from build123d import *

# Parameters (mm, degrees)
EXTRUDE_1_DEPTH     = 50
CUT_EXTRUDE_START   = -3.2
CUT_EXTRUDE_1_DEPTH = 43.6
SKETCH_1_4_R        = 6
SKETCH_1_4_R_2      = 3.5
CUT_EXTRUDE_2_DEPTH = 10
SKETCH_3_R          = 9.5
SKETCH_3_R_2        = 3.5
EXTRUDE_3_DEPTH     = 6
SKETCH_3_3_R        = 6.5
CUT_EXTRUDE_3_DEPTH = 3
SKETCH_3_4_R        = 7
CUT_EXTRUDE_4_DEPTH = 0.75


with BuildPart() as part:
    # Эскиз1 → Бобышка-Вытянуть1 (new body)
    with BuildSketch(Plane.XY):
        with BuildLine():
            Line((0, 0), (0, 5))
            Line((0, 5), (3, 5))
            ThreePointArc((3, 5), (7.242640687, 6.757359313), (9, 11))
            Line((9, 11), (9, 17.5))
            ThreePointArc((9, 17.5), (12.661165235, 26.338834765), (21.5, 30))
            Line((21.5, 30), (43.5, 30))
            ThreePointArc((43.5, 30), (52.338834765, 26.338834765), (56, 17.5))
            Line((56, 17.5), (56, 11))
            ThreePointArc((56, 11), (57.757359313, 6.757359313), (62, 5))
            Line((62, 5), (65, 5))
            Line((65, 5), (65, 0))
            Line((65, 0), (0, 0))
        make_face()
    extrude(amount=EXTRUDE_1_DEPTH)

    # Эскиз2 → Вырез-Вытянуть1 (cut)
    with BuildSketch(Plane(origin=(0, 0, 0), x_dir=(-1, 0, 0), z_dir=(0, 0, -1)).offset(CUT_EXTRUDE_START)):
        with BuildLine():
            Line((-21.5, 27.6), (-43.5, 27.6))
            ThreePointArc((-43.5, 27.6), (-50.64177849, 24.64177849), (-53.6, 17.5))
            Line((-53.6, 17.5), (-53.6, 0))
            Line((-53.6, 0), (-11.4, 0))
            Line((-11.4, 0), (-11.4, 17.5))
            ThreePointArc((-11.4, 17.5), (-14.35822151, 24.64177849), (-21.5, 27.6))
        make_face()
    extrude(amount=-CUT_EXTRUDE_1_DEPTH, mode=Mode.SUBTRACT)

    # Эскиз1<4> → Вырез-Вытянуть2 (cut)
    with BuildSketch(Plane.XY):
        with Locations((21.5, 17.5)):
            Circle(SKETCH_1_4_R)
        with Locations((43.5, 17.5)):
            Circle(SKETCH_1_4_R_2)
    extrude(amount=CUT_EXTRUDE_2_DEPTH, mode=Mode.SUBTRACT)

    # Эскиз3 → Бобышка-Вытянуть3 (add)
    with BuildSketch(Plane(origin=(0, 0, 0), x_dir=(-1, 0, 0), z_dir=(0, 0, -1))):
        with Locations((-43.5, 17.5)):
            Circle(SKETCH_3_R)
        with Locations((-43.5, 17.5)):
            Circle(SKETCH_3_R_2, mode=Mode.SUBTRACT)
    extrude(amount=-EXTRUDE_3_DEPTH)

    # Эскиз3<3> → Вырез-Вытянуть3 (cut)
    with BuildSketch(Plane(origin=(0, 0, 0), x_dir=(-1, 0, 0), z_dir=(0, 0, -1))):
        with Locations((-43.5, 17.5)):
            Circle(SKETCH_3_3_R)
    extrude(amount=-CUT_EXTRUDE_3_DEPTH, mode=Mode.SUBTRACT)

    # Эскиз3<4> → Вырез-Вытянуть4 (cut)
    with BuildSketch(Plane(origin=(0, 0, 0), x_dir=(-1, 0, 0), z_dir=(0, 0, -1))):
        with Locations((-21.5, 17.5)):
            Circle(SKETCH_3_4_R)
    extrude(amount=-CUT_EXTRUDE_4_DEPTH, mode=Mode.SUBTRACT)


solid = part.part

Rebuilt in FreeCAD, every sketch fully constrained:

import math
import FreeCAD as App
import Part
import Sketcher
Q = App.Units.Quantity

doc = App.newDocument("Part")
body = doc.addObject("PartDesign::Body", "Body")

# Sketch on XY plane
sketch1 = body.newObject("Sketcher::SketchObject", "Sketch")
sketch1.AttachmentSupport = (doc.getObject("XY_Plane"), [""])
sketch1.MapMode = "FlatFace"
sketch1.addGeometry([
    Part.LineSegment(App.Vector(0, 5, 0), App.Vector(0, 0, 0)),  # 0
    Part.LineSegment(App.Vector(0, 0, 0), App.Vector(65, 0, 0)),  # 1
    Part.LineSegment(App.Vector(65, 0, 0), App.Vector(65, 5, 0)),  # 2
    Part.LineSegment(App.Vector(65, 5, 0), App.Vector(62, 5, 0)),  # 3
    Part.ArcOfCircle(Part.Circle(App.Vector(62, 11, 0), App.Vector(0, 0, 1), 6), math.radians(180), math.radians(270)),  # 4
    Part.LineSegment(App.Vector(56, 11, 0), App.Vector(56, 17.5, 0)),  # 5
    Part.ArcOfCircle(Part.Circle(App.Vector(43.5, 17.5, 0), App.Vector(0, 0, 1), 12.5), math.radians(0), math.radians(90)),  # 6
    Part.LineSegment(App.Vector(43.5, 30, 0), App.Vector(21.5, 30, 0)),  # 7
    Part.ArcOfCircle(Part.Circle(App.Vector(21.5, 17.5, 0), App.Vector(0, 0, 1), 12.5), math.radians(90), math.radians(180)),  # 8
    Part.LineSegment(App.Vector(9, 17.5, 0), App.Vector(9, 11, 0)),  # 9
    Part.ArcOfCircle(Part.Circle(App.Vector(3, 11, 0), App.Vector(0, 0, 1), 6), math.radians(-90), math.radians(0)),  # 10
    Part.LineSegment(App.Vector(3, 5, 0), App.Vector(0, 5, 0)),  # 11
], False)
sketch1.addConstraint([
    Sketcher.Constraint("Coincident", 0, 2, 1, 1),
    Sketcher.Constraint("Coincident", 1, 2, 2, 1),
    Sketcher.Constraint("Coincident", 2, 2, 3, 1),
    Sketcher.Constraint("Tangent", 3, 2, 4, 2),
    Sketcher.Constraint("Tangent", 4, 1, 5, 1),
    Sketcher.Constraint("Tangent", 5, 2, 6, 1),
    Sketcher.Constraint("Tangent", 6, 2, 7, 1),
    Sketcher.Constraint("Tangent", 7, 2, 8, 1),
    Sketcher.Constraint("Tangent", 8, 2, 9, 1),
    Sketcher.Constraint("Tangent", 9, 2, 10, 2),
    Sketcher.Constraint("Tangent", 10, 1, 11, 1),
    Sketcher.Constraint("Coincident", 11, 2, 0, 1),
    Sketcher.Constraint("Vertical", 0),
    Sketcher.Constraint("Horizontal", 1),
    Sketcher.Constraint("Vertical", 2),
    Sketcher.Constraint("Horizontal", 3),
    Sketcher.Constraint("Vertical", 5),
    Sketcher.Constraint("Horizontal", 7),
    Sketcher.Constraint("Vertical", 9),
    Sketcher.Constraint("Horizontal", 11),
    Sketcher.Constraint("Coincident", 0, 2, -1, 1),
    Sketcher.Constraint("Equal", 6, 8),
    Sketcher.Constraint("Equal", 4, 10),
    Sketcher.Constraint("Horizontal", 4, 3, 10, 3),
    Sketcher.Constraint("Equal", 3, 11),
    Sketcher.Constraint("Radius", 4, Q("6 mm")),
    Sketcher.Constraint("Radius", 6, Q("12.5 mm")),
    Sketcher.Constraint("DistanceX", 1, 1, 1, 2, Q("65 mm")),
    Sketcher.Constraint("DistanceX", 3, 2, 3, 1, Q("3 mm")),
    Sketcher.Constraint("DistanceY", 0, 2, 0, 1, Q("5 mm")),
    Sketcher.Constraint("DistanceY", 5, 1, 5, 2, Q("6.5 mm")),
])
pad1 = body.newObject("PartDesign::Pad", "Pad")
pad1.Profile = sketch1
pad1.Length = 50

# Sketch on XY plane
sketch2 = body.newObject("Sketcher::SketchObject", "Sketch001")
sketch2.AttachmentSupport = (doc.getObject("XY_Plane"), [""])
sketch2.MapMode = "FlatFace"
sketch2.AttachmentOffset = App.Placement(App.Vector(0, 0, 3.2), App.Rotation())
sketch2.addGeometry([
    Part.LineSegment(App.Vector(21.5, 27.6, 0), App.Vector(43.5, 27.6, 0)),  # 0
    Part.ArcOfCircle(Part.Circle(App.Vector(43.5, 17.5, 0), App.Vector(0, 0, 1), 10.1), math.radians(0), math.radians(90)),  # 1
    Part.LineSegment(App.Vector(53.6, 17.5, 0), App.Vector(53.6, 0, 0)),  # 2
    Part.LineSegment(App.Vector(53.6, 0, 0), App.Vector(11.4, 0, 0)),  # 3
    Part.LineSegment(App.Vector(11.4, 0, 0), App.Vector(11.4, 17.5, 0)),  # 4
    Part.ArcOfCircle(Part.Circle(App.Vector(21.5, 17.5, 0), App.Vector(0, 0, 1), 10.1), math.radians(90), math.radians(180)),  # 5
], False)
sketch2.addConstraint([
    Sketcher.Constraint("Tangent", 0, 2, 1, 2),
    Sketcher.Constraint("Tangent", 1, 1, 2, 1),
    Sketcher.Constraint("Coincident", 2, 2, 3, 1),
    Sketcher.Constraint("Coincident", 3, 2, 4, 1),
    Sketcher.Constraint("Tangent", 4, 2, 5, 2),
    Sketcher.Constraint("Tangent", 5, 1, 0, 1),
    Sketcher.Constraint("Horizontal", 0),
    Sketcher.Constraint("Vertical", 2),
    Sketcher.Constraint("Horizontal", 3),
    Sketcher.Constraint("Vertical", 4),
    Sketcher.Constraint("Equal", 1, 5),
    Sketcher.Constraint("PointOnObject", 2, 2, -1),
    Sketcher.Constraint("Radius", 1, Q("10.1 mm")),
    Sketcher.Constraint("DistanceX", 0, 1, 0, 2, Q("22 mm")),
    Sketcher.Constraint("DistanceY", 2, 2, 2, 1, Q("17.5 mm")),
    Sketcher.Constraint("DistanceX", -1, 1, 1, 3, Q("43.5 mm")),
])
pocket1 = body.newObject("PartDesign::Pocket", "Pocket")
pocket1.Profile = sketch2
pocket1.Length = 43.6
pocket1.Reversed = True

# Sketch on XY plane
sketch3 = body.newObject("Sketcher::SketchObject", "Sketch002")
sketch3.AttachmentSupport = (doc.getObject("XY_Plane"), [""])
sketch3.MapMode = "FlatFace"
sketch3.addGeometry([
    Part.Circle(App.Vector(21.5, 17.5, 0), App.Vector(0, 0, 1), 6),
    Part.Circle(App.Vector(43.5, 17.5, 0), App.Vector(0, 0, 1), 3.5),
], False)
sketch3.addConstraint([
    Sketcher.Constraint("Horizontal", 0, 3, 1, 3),
    Sketcher.Constraint("Diameter", 0, Q("12 mm")),
    Sketcher.Constraint("Diameter", 1, Q("7 mm")),
    Sketcher.Constraint("DistanceX", 0, 3, 1, 3, Q("22 mm")),
    Sketcher.Constraint("DistanceX", -1, 1, 0, 3, Q("21.5 mm")),
    Sketcher.Constraint("DistanceY", -1, 1, 0, 3, Q("17.5 mm")),
])
pocket2 = body.newObject("PartDesign::Pocket", "Pocket001")
pocket2.Profile = sketch3
pocket2.Length = 10
pocket2.Reversed = True

# Sketch on XY plane
sketch4 = body.newObject("Sketcher::SketchObject", "Sketch003")
sketch4.AttachmentSupport = (doc.getObject("XY_Plane"), [""])
sketch4.MapMode = "FlatFace"
sketch4.addGeometry([
    Part.Circle(App.Vector(43.5, 17.5, 0), App.Vector(0, 0, 1), 9.5),
    Part.Circle(App.Vector(43.5, 17.5, 0), App.Vector(0, 0, 1), 3.5),
], False)
sketch4.addConstraint([
    Sketcher.Constraint("Coincident", 1, 3, 0, 3),
    Sketcher.Constraint("Diameter", 0, Q("19 mm")),
    Sketcher.Constraint("Diameter", 1, Q("7 mm")),
    Sketcher.Constraint("DistanceX", -1, 1, 0, 3, Q("43.5 mm")),
    Sketcher.Constraint("DistanceY", -1, 1, 0, 3, Q("17.5 mm")),
])
pad2 = body.newObject("PartDesign::Pad", "Pad001")
pad2.Profile = sketch4
pad2.Length = 6

# Sketch on XY plane
sketch5 = body.newObject("Sketcher::SketchObject", "Sketch004")
sketch5.AttachmentSupport = (doc.getObject("XY_Plane"), [""])
sketch5.MapMode = "FlatFace"
sketch5.addGeometry(Part.Circle(App.Vector(43.5, 17.5, 0), App.Vector(0, 0, 1), 6.5), False)
sketch5.addConstraint([
    Sketcher.Constraint("Diameter", 0, Q("13 mm")),
    Sketcher.Constraint("DistanceX", -1, 1, 0, 3, Q("43.5 mm")),
    Sketcher.Constraint("DistanceY", -1, 1, 0, 3, Q("17.5 mm")),
])
pocket3 = body.newObject("PartDesign::Pocket", "Pocket002")
pocket3.Profile = sketch5
pocket3.Length = 3
pocket3.Reversed = True

# Sketch on XY plane
sketch6 = body.newObject("Sketcher::SketchObject", "Sketch005")
sketch6.AttachmentSupport = (doc.getObject("XY_Plane"), [""])
sketch6.MapMode = "FlatFace"
sketch6.addGeometry(Part.Circle(App.Vector(21.5, 17.5, 0), App.Vector(0, 0, 1), 7), False)
sketch6.addConstraint([
    Sketcher.Constraint("Diameter", 0, Q("14 mm")),
    Sketcher.Constraint("DistanceX", -1, 1, 0, 3, Q("21.5 mm")),
    Sketcher.Constraint("DistanceY", -1, 1, 0, 3, Q("17.5 mm")),
])
pocket4 = body.newObject("PartDesign::Pocket", "Pocket003")
pocket4.Profile = sketch6
pocket4.Length = 0.75
pocket4.Reversed = True

doc.recompute()
